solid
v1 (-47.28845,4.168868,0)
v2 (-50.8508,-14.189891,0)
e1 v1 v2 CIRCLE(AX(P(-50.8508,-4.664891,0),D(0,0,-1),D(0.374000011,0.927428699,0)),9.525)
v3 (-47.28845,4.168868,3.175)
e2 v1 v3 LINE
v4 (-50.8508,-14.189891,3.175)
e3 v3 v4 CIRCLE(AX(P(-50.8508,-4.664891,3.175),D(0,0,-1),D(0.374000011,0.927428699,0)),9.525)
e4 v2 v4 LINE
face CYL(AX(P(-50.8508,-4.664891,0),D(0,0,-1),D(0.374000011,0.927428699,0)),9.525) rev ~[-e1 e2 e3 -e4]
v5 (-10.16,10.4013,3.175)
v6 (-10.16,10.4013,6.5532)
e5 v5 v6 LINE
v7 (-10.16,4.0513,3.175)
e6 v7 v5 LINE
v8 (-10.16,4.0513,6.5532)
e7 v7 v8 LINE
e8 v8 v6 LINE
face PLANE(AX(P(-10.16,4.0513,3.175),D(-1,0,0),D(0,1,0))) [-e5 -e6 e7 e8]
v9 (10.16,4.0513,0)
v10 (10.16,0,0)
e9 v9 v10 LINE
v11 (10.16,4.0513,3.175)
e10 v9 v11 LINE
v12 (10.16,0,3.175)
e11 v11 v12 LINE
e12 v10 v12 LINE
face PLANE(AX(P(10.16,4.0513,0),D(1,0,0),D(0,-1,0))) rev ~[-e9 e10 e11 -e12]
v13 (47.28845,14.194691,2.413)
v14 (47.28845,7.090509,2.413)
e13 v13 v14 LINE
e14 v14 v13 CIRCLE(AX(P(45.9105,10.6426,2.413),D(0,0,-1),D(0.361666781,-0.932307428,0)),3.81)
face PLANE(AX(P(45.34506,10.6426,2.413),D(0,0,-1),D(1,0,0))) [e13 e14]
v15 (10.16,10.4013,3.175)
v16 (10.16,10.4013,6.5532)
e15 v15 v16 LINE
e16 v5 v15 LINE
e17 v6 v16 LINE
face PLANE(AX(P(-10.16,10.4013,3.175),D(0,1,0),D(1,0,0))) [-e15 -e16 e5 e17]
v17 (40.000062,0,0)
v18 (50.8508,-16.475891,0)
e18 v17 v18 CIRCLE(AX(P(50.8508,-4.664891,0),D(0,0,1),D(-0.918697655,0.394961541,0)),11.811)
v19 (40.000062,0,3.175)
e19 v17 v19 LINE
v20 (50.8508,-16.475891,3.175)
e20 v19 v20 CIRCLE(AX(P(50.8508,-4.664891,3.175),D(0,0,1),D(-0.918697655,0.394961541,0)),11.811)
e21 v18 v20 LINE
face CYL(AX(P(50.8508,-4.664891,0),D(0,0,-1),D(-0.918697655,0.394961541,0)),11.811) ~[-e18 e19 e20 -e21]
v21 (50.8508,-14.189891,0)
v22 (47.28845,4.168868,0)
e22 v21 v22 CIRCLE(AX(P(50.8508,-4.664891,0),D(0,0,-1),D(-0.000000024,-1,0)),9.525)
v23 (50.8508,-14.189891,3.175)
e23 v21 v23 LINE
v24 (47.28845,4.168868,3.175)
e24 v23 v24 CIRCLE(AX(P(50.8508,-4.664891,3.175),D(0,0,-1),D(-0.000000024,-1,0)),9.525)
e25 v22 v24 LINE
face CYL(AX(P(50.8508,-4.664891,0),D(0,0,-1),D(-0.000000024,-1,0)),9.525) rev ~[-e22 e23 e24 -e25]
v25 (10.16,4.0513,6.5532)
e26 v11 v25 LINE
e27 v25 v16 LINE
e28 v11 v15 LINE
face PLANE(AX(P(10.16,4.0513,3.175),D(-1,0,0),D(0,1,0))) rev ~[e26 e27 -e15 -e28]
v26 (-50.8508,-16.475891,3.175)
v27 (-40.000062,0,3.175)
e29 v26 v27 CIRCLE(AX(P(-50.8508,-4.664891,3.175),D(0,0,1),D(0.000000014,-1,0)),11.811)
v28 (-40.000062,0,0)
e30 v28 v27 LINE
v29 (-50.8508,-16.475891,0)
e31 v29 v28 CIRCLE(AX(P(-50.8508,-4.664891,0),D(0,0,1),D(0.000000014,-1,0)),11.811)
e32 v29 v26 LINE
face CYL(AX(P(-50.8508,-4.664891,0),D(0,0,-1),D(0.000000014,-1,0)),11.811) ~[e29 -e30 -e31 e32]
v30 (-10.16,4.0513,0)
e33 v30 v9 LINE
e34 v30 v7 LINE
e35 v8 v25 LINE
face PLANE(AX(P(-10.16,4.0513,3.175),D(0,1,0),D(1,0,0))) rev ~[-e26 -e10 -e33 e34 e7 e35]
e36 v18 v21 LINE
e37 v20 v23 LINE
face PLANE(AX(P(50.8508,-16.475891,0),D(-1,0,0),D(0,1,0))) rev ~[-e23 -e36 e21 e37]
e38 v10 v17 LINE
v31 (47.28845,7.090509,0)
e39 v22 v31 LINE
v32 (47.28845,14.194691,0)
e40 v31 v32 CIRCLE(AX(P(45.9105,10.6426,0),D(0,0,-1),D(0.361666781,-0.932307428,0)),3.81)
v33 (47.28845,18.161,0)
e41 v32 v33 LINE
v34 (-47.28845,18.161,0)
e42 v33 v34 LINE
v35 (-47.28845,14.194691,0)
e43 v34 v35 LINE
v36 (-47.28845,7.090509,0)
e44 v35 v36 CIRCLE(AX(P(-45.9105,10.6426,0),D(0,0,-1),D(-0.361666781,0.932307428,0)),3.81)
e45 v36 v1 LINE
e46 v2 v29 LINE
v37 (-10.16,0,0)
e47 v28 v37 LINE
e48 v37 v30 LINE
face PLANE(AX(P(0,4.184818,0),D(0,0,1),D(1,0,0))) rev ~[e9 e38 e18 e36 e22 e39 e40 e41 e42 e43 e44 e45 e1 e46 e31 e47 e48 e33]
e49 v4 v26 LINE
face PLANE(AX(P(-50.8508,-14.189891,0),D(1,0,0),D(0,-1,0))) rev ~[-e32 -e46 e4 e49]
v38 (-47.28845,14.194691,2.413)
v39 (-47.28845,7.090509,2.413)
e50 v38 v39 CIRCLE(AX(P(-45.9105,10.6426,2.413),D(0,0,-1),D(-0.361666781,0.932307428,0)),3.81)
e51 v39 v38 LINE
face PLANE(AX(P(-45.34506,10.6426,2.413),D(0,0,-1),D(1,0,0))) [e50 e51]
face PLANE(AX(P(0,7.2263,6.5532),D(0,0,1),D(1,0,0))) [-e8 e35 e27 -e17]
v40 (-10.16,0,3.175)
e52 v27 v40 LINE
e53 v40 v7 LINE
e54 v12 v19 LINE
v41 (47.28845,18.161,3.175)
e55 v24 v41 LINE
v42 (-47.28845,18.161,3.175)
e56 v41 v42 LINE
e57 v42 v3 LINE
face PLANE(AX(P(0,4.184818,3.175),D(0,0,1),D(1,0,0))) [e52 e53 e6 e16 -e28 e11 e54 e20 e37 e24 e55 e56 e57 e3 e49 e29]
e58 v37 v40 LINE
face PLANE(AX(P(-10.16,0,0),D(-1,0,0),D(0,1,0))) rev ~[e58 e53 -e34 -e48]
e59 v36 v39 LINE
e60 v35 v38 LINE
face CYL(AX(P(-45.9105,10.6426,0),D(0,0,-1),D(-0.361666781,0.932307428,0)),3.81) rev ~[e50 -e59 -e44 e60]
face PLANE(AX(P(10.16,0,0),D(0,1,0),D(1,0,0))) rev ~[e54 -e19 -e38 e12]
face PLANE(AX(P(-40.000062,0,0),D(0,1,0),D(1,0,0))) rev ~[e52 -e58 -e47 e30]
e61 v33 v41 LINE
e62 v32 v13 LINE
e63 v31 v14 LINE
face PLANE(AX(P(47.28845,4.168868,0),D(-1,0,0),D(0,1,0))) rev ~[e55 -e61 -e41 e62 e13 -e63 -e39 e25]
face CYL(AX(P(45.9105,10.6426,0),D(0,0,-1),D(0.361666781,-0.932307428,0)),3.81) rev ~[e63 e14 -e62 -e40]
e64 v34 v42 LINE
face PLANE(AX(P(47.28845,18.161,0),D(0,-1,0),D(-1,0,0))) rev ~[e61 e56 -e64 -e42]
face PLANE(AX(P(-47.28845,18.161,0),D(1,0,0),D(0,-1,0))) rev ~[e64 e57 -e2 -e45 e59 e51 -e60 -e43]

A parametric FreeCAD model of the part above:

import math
import FreeCAD as App
import Part
import Sketcher
Q = App.Units.Quantity

doc = App.newDocument("Part")
params = doc.addObject("Spreadsheet::Sheet", "Params")
for row, (alias, value) in enumerate([
    ("sketch1_width", "0.8 in"),
    ("sketch1_radius", "0.375 in"),
    ("sketch1_radius2", "0.465 in"),
    ("pad1_length", "0.125 in"),
    ("sketch2_radius", "0.15 in"),
    ("pocket1_length", "0.095 in"),
    ("sketch3_width", "0.8 in"),
    ("sketch3_height", "0.25 in"),
    ("pad2_length", "0.133 in"),
], start=1):
    params.set(f"A{row}", alias)
    params.set(f"B{row}", "=" + value)
    params.setAlias(f"B{row}", alias)

body = doc.addObject("PartDesign::Body", "Body")

# Sketch on XY plane
sketch1 = body.newObject("Sketcher::SketchObject", "Sketch")
sketch1.AttachmentSupport = (doc.getObject("XY_Plane"), [""])
sketch1.MapMode = "FlatFace"
sketch1.addGeometry([
    Part.LineSegment(App.Vector(47.3, 18.2, 0), App.Vector(-47.3, 18.2, 0)),  # 0
    Part.LineSegment(App.Vector(-47.3, 18.2, 0), App.Vector(-47.3, 4.2, 0)),  # 1
    Part.ArcOfCircle(Part.Circle(App.Vector(-50.9, -4.7, 0), App.Vector(0, 0, 1), 9.5), math.radians(-90), math.radians(68)),  # 2
    Part.LineSegment(App.Vector(-50.9, -14.2, 0), App.Vector(-50.9, -16.5, 0)),  # 3
    Part.ArcOfCircle(Part.Circle(App.Vector(-50.9, -4.7, 0), App.Vector(0, 0, 1), 11.8), math.radians(-90), math.radians(23)),  # 4
    Part.LineSegment(App.Vector(-40, 0, 0), App.Vector(-10.2, 0, 0)),  # 5
    Part.LineSegment(App.Vector(-10.2, 0, 0), App.Vector(-10.2, 4.1, 0)),  # 6
    Part.LineSegment(App.Vector(-10.2, 4.1, 0), App.Vector(10.2, 4.1, 0)),  # 7
    Part.LineSegment(App.Vector(10.2, 4.1, 0), App.Vector(10.2, 0, 0)),  # 8
    Part.LineSegment(App.Vector(10.2, 0, 0), App.Vector(40, 0, 0)),  # 9
    Part.ArcOfCircle(Part.Circle(App.Vector(50.9, -4.7, 0), App.Vector(0, 0, 1), 11.8), math.radians(157), math.radians(270)),  # 10
    Part.LineSegment(App.Vector(50.9, -16.5, 0), App.Vector(50.9, -14.2, 0)),  # 11
    Part.ArcOfCircle(Part.Circle(App.Vector(50.9, -4.7, 0), App.Vector(0, 0, 1), 9.5), math.radians(112), math.radians(270)),  # 12
    Part.LineSegment(App.Vector(47.3, 4.2, 0), App.Vector(47.3, 18.2, 0)),  # 13
], False)
sketch1.addConstraint([
    Sketcher.Constraint("Coincident", 0, 2, 1, 1),
    Sketcher.Constraint("Coincident", 1, 2, 2, 2),
    Sketcher.Constraint("Coincident", 2, 1, 3, 1),
    Sketcher.Constraint("Coincident", 3, 2, 4, 1),
    Sketcher.Constraint("Coincident", 4, 2, 5, 1),
    Sketcher.Constraint("Coincident", 5, 2, 6, 1),
    Sketcher.Constraint("Coincident", 6, 2, 7, 1),
    Sketcher.Constraint("Coincident", 7, 2, 8, 1),
    Sketcher.Constraint("Coincident", 8, 2, 9, 1),
    Sketcher.Constraint("Coincident", 9, 2, 10, 1),
    Sketcher.Constraint("Coincident", 10, 2, 11, 1),
    Sketcher.Constraint("Coincident", 11, 2, 12, 2),
    Sketcher.Constraint("Coincident", 12, 1, 13, 1),
    Sketcher.Constraint("Coincident", 13, 2, 0, 1),
    Sketcher.Constraint("Horizontal", 0),
    Sketcher.Constraint("Vertical", 1),
    Sketcher.Constraint("Vertical", 3),
    Sketcher.Constraint("Horizontal", 5),
    Sketcher.Constraint("Vertical", 6),
    Sketcher.Constraint("Horizontal", 7),
    Sketcher.Constraint("Vertical", 8),
    Sketcher.Constraint("Horizontal", 9),
    Sketcher.Constraint("Vertical", 11),
    Sketcher.Constraint("Vertical", 13),
    Sketcher.Constraint("Coincident", 4, 3, 2, 3),
    Sketcher.Constraint("Coincident", 12, 3, 10, 3),
    Sketcher.Constraint("Equal", 4, 10),
    Sketcher.Constraint("Equal", 2, 12),
    Sketcher.Constraint("Symmetric", 5, 2, 8, 2, -1, 1),
    Sketcher.Constraint("Symmetric", 2, 3, 10, 3, -2),
    Sketcher.Constraint("PointOnObject", 4, 2, -1),
    Sketcher.Constraint("Horizontal", 1, 2, 12, 1),
    Sketcher.Constraint("Vertical", 4, 3, 2, 1),
    Sketcher.Constraint("Vertical", 12, 3, 10, 2),
    Sketcher.Constraint("DistanceX", 7, 1, 7, 2, Q("0.8 in")),
    Sketcher.Constraint("Radius", 2, Q("0.375 in")),
    Sketcher.Constraint("Radius", 4, Q("0.465 in")),
    Sketcher.Constraint("DistanceX", 0, 2, 0, 1, Q("3.7235 in")),
    Sketcher.Constraint("DistanceY", 6, 1, 6, 2, Q("0.1595 in")),
    Sketcher.Constraint("DistanceX", 2, 3, -1, 1, Q("2.002 in")),
    Sketcher.Constraint("DistanceY", -1, 1, 0, 2, Q("0.715 in")),
    Sketcher.Constraint("DistanceX", 5, 1, 5, 2, Q("29.840062 mm")),
])
sketch1.setExpression("Constraints[34]", "Params.sketch1_width")
sketch1.setExpression("Constraints[35]", "Params.sketch1_radius")
sketch1.setExpression("Constraints[36]", "Params.sketch1_radius2")
pad1 = body.newObject("PartDesign::Pad", "Pad")
pad1.Profile = sketch1
pad1.setExpression("Length", "Params.pad1_length")

# Sketch on XY plane
sketch2 = body.newObject("Sketcher::SketchObject", "Sketch001")
sketch2.AttachmentSupport = (doc.getObject("XY_Plane"), [""])
sketch2.MapMode = "FlatFace"
sketch2.addGeometry([
    Part.LineSegment(App.Vector(-47.3, 7.1, 0), App.Vector(-47.3, 14.2, 0)),
    Part.ArcOfCircle(Part.Circle(App.Vector(-45.9, 10.6, 0), App.Vector(0, 0, 1), 3.8), math.radians(-111), math.radians(111)),
    Part.ArcOfCircle(Part.Circle(App.Vector(45.9, 10.6, 0), App.Vector(0, 0, 1), 3.8), math.radians(69), math.radians(291)),
    Part.LineSegment(App.Vector(47.3, 14.2, 0), App.Vector(47.3, 7.1, 0)),
], False)
sketch2.addConstraint([
    Sketcher.Constraint("Coincident", 0, 1, 1, 1),
    Sketcher.Constraint("Coincident", 1, 2, 0, 2),
    Sketcher.Constraint("Coincident", 2, 1, 3, 1),
    Sketcher.Constraint("Coincident", 3, 2, 2, 2),
    Sketcher.Constraint("Vertical", 0),
    Sketcher.Constraint("Vertical", 3),
    Sketcher.Constraint("Equal", 1, 2),
    Sketcher.Constraint("Symmetric", 1, 3, 2, 3, -2),
    Sketcher.Constraint("Horizontal", 1, 2, 2, 1),
    Sketcher.Constraint("Radius", 1, Q("0.15 in")),
    Sketcher.Constraint("DistanceY", -1, 1, 1, 3, Q("0.419 in")),
    Sketcher.Constraint("DistanceX", 1, 3, 2, 3, Q("3.615 in")),
    Sketcher.Constraint("DistanceX", 1, 2, 2, 1, Q("3.7235 in")),
])
sketch2.setExpression("Constraints[9]", "Params.sketch2_radius")
pocket1 = body.newObject("PartDesign::Pocket", "Pocket")
pocket1.Profile = sketch2
pocket1.setExpression("Length", "Params.pocket1_length")
pocket1.Reversed = True

# Sketch on XY plane
sketch3 = body.newObject("Sketcher::SketchObject", "Sketch002")
sketch3.AttachmentSupport = (doc.getObject("XY_Plane"), [""])
sketch3.MapMode = "FlatFace"
sketch3.AttachmentOffset = App.Placement(App.Vector(0, 0, 0.125 * 25.4), App.Rotation())
sketch3.addGeometry([
    Part.LineSegment(App.Vector(-10, 10, 0), App.Vector(-10, 4, 0)),
    Part.LineSegment(App.Vector(-10, 4, 0), App.Vector(10, 4, 0)),
    Part.LineSegment(App.Vector(10, 4, 0), App.Vector(10, 10, 0)),
    Part.LineSegment(App.Vector(10, 10, 0), App.Vector(-10, 10, 0)),
], False)
sketch3.addConstraint([
    Sketcher.Constraint("Coincident", 0, 2, 1, 1),
    Sketcher.Constraint("Coincident", 1, 2, 2, 1),
    Sketcher.Constraint("Coincident", 2, 2, 3, 1),
    Sketcher.Constraint("Coincident", 3, 2, 0, 1),
    Sketcher.Constraint("Vertical", 0),
    Sketcher.Constraint("Horizontal", 1),
    Sketcher.Constraint("Vertical", 2),
    Sketcher.Constraint("Horizontal", 3),
    Sketcher.Constraint("DistanceX", 1, 1, 1, 2, Q("0.8 in")),
    Sketcher.Constraint("DistanceY", 0, 2, 0, 1, Q("0.25 in")),
    Sketcher.Constraint("DistanceX", 0, 2, -1, 1, Q("0.4 in")),
    Sketcher.Constraint("DistanceY", -1, 1, 0, 2, Q("0.1595 in")),
])
sketch3.setExpression("Constraints[8]", "Params.sketch3_width")
sketch3.setExpression("Constraints[9]", "Params.sketch3_height")
pad2 = body.newObject("PartDesign::Pad", "Pad001")
pad2.Profile = sketch3
pad2.setExpression("Length", "Params.pad2_length")

doc.recompute()
